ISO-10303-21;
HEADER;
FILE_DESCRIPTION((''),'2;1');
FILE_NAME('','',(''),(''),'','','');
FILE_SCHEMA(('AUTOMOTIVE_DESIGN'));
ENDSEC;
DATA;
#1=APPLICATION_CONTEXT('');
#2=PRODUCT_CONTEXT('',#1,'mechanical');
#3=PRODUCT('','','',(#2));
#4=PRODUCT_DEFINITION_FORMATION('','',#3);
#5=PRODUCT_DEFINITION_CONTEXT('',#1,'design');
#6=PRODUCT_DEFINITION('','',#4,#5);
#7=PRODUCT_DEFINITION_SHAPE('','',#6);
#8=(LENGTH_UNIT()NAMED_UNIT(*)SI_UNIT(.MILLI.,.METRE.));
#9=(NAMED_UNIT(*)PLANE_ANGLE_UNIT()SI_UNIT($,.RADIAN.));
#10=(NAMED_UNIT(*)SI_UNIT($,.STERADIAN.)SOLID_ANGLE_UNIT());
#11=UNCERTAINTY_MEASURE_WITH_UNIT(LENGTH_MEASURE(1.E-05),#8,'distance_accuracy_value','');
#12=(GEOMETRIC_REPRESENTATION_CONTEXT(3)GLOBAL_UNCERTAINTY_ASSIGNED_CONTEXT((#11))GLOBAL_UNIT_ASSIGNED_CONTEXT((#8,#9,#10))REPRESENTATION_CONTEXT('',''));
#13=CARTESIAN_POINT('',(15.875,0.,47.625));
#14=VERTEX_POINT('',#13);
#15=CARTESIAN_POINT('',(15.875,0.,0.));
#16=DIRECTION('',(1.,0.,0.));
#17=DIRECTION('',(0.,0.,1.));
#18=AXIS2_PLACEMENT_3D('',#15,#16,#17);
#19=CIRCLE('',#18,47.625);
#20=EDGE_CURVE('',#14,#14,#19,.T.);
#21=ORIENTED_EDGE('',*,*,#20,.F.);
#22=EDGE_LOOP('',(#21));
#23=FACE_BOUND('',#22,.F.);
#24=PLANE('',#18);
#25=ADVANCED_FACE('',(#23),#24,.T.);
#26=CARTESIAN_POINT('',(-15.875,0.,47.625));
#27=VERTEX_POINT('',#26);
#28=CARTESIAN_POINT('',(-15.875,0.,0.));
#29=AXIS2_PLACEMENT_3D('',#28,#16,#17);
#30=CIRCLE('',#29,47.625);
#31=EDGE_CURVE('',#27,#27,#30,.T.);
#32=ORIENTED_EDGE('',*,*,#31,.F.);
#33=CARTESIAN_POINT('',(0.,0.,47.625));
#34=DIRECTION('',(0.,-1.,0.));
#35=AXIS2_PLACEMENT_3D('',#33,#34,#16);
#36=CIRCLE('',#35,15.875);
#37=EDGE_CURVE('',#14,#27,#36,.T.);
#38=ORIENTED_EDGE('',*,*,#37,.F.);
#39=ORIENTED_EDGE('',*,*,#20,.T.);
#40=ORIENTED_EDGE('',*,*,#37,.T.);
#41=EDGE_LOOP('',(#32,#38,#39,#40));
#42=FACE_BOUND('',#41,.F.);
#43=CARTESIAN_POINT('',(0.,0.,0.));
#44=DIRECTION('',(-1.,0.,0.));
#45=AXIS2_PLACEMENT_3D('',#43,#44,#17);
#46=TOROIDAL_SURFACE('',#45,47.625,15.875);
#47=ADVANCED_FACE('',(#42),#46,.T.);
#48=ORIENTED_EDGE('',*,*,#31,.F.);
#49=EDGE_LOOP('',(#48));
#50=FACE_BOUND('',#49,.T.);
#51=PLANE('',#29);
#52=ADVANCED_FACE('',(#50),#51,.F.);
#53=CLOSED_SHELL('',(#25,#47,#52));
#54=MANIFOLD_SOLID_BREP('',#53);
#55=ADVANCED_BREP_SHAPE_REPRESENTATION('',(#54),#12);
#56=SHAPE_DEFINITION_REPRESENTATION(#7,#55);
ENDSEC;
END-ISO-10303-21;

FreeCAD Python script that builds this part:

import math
import FreeCAD as App
import Part
import Sketcher
from FreeCAD import Vector
Q = App.Units.Quantity

doc = App.newDocument("Part")
body = doc.addObject("PartDesign::Body", "Body")

sketch1 = body.newObject("Sketcher::SketchObject", "Sketch")
sketch1.AttachmentSupport = (doc.getObject("XZ_Plane"), [""])
sketch1.MapMode = "FlatFace"
sketch1.addGeometry(Part.ArcOfCircle(Part.Circle(Vector(0, 48, 0), Vector(0, 0, 1), 16), math.radians(0), math.radians(180)), False)
sketch1.addGeometry(Part.LineSegment(Vector(-16, 48, 0), Vector(-16, 0, 0)), False)
sketch1.addGeometry(Part.LineSegment(Vector(-16, 0, 0), Vector(16, 0, 0)), False)
sketch1.addGeometry(Part.LineSegment(Vector(16, 0, 0), Vector(16, 48, 0)), False)
sketch1.addConstraint(Sketcher.Constraint("Tangent", 0, 2, 1, 1))
sketch1.addConstraint(Sketcher.Constraint("Coincident", 1, 2, 2, 1))
sketch1.addConstraint(Sketcher.Constraint("Coincident", 2, 2, 3, 1))
sketch1.addConstraint(Sketcher.Constraint("Tangent", 3, 2, 0, 1))
sketch1.addConstraint(Sketcher.Constraint("Vertical", 1))
sketch1.addConstraint(Sketcher.Constraint("Horizontal", 2))
sketch1.addConstraint(Sketcher.Constraint("Vertical", 3))
sketch1.addConstraint(Sketcher.Constraint("Symmetric", 1, 2, 2, 2, -1, 1))
sketch1.addConstraint(Sketcher.Constraint("Radius", 0, Q("0.625 in")))
sketch1.addConstraint(Sketcher.Constraint("DistanceY", 1, 2, 1, 1, Q("1.875 in")))
revolution = body.newObject("PartDesign::Revolution", "Revolution")
revolution.Profile = sketch1
revolution.ReferenceAxis = (sketch1, ["H_Axis"])
revolution.Angle = 360

doc.recompute()
